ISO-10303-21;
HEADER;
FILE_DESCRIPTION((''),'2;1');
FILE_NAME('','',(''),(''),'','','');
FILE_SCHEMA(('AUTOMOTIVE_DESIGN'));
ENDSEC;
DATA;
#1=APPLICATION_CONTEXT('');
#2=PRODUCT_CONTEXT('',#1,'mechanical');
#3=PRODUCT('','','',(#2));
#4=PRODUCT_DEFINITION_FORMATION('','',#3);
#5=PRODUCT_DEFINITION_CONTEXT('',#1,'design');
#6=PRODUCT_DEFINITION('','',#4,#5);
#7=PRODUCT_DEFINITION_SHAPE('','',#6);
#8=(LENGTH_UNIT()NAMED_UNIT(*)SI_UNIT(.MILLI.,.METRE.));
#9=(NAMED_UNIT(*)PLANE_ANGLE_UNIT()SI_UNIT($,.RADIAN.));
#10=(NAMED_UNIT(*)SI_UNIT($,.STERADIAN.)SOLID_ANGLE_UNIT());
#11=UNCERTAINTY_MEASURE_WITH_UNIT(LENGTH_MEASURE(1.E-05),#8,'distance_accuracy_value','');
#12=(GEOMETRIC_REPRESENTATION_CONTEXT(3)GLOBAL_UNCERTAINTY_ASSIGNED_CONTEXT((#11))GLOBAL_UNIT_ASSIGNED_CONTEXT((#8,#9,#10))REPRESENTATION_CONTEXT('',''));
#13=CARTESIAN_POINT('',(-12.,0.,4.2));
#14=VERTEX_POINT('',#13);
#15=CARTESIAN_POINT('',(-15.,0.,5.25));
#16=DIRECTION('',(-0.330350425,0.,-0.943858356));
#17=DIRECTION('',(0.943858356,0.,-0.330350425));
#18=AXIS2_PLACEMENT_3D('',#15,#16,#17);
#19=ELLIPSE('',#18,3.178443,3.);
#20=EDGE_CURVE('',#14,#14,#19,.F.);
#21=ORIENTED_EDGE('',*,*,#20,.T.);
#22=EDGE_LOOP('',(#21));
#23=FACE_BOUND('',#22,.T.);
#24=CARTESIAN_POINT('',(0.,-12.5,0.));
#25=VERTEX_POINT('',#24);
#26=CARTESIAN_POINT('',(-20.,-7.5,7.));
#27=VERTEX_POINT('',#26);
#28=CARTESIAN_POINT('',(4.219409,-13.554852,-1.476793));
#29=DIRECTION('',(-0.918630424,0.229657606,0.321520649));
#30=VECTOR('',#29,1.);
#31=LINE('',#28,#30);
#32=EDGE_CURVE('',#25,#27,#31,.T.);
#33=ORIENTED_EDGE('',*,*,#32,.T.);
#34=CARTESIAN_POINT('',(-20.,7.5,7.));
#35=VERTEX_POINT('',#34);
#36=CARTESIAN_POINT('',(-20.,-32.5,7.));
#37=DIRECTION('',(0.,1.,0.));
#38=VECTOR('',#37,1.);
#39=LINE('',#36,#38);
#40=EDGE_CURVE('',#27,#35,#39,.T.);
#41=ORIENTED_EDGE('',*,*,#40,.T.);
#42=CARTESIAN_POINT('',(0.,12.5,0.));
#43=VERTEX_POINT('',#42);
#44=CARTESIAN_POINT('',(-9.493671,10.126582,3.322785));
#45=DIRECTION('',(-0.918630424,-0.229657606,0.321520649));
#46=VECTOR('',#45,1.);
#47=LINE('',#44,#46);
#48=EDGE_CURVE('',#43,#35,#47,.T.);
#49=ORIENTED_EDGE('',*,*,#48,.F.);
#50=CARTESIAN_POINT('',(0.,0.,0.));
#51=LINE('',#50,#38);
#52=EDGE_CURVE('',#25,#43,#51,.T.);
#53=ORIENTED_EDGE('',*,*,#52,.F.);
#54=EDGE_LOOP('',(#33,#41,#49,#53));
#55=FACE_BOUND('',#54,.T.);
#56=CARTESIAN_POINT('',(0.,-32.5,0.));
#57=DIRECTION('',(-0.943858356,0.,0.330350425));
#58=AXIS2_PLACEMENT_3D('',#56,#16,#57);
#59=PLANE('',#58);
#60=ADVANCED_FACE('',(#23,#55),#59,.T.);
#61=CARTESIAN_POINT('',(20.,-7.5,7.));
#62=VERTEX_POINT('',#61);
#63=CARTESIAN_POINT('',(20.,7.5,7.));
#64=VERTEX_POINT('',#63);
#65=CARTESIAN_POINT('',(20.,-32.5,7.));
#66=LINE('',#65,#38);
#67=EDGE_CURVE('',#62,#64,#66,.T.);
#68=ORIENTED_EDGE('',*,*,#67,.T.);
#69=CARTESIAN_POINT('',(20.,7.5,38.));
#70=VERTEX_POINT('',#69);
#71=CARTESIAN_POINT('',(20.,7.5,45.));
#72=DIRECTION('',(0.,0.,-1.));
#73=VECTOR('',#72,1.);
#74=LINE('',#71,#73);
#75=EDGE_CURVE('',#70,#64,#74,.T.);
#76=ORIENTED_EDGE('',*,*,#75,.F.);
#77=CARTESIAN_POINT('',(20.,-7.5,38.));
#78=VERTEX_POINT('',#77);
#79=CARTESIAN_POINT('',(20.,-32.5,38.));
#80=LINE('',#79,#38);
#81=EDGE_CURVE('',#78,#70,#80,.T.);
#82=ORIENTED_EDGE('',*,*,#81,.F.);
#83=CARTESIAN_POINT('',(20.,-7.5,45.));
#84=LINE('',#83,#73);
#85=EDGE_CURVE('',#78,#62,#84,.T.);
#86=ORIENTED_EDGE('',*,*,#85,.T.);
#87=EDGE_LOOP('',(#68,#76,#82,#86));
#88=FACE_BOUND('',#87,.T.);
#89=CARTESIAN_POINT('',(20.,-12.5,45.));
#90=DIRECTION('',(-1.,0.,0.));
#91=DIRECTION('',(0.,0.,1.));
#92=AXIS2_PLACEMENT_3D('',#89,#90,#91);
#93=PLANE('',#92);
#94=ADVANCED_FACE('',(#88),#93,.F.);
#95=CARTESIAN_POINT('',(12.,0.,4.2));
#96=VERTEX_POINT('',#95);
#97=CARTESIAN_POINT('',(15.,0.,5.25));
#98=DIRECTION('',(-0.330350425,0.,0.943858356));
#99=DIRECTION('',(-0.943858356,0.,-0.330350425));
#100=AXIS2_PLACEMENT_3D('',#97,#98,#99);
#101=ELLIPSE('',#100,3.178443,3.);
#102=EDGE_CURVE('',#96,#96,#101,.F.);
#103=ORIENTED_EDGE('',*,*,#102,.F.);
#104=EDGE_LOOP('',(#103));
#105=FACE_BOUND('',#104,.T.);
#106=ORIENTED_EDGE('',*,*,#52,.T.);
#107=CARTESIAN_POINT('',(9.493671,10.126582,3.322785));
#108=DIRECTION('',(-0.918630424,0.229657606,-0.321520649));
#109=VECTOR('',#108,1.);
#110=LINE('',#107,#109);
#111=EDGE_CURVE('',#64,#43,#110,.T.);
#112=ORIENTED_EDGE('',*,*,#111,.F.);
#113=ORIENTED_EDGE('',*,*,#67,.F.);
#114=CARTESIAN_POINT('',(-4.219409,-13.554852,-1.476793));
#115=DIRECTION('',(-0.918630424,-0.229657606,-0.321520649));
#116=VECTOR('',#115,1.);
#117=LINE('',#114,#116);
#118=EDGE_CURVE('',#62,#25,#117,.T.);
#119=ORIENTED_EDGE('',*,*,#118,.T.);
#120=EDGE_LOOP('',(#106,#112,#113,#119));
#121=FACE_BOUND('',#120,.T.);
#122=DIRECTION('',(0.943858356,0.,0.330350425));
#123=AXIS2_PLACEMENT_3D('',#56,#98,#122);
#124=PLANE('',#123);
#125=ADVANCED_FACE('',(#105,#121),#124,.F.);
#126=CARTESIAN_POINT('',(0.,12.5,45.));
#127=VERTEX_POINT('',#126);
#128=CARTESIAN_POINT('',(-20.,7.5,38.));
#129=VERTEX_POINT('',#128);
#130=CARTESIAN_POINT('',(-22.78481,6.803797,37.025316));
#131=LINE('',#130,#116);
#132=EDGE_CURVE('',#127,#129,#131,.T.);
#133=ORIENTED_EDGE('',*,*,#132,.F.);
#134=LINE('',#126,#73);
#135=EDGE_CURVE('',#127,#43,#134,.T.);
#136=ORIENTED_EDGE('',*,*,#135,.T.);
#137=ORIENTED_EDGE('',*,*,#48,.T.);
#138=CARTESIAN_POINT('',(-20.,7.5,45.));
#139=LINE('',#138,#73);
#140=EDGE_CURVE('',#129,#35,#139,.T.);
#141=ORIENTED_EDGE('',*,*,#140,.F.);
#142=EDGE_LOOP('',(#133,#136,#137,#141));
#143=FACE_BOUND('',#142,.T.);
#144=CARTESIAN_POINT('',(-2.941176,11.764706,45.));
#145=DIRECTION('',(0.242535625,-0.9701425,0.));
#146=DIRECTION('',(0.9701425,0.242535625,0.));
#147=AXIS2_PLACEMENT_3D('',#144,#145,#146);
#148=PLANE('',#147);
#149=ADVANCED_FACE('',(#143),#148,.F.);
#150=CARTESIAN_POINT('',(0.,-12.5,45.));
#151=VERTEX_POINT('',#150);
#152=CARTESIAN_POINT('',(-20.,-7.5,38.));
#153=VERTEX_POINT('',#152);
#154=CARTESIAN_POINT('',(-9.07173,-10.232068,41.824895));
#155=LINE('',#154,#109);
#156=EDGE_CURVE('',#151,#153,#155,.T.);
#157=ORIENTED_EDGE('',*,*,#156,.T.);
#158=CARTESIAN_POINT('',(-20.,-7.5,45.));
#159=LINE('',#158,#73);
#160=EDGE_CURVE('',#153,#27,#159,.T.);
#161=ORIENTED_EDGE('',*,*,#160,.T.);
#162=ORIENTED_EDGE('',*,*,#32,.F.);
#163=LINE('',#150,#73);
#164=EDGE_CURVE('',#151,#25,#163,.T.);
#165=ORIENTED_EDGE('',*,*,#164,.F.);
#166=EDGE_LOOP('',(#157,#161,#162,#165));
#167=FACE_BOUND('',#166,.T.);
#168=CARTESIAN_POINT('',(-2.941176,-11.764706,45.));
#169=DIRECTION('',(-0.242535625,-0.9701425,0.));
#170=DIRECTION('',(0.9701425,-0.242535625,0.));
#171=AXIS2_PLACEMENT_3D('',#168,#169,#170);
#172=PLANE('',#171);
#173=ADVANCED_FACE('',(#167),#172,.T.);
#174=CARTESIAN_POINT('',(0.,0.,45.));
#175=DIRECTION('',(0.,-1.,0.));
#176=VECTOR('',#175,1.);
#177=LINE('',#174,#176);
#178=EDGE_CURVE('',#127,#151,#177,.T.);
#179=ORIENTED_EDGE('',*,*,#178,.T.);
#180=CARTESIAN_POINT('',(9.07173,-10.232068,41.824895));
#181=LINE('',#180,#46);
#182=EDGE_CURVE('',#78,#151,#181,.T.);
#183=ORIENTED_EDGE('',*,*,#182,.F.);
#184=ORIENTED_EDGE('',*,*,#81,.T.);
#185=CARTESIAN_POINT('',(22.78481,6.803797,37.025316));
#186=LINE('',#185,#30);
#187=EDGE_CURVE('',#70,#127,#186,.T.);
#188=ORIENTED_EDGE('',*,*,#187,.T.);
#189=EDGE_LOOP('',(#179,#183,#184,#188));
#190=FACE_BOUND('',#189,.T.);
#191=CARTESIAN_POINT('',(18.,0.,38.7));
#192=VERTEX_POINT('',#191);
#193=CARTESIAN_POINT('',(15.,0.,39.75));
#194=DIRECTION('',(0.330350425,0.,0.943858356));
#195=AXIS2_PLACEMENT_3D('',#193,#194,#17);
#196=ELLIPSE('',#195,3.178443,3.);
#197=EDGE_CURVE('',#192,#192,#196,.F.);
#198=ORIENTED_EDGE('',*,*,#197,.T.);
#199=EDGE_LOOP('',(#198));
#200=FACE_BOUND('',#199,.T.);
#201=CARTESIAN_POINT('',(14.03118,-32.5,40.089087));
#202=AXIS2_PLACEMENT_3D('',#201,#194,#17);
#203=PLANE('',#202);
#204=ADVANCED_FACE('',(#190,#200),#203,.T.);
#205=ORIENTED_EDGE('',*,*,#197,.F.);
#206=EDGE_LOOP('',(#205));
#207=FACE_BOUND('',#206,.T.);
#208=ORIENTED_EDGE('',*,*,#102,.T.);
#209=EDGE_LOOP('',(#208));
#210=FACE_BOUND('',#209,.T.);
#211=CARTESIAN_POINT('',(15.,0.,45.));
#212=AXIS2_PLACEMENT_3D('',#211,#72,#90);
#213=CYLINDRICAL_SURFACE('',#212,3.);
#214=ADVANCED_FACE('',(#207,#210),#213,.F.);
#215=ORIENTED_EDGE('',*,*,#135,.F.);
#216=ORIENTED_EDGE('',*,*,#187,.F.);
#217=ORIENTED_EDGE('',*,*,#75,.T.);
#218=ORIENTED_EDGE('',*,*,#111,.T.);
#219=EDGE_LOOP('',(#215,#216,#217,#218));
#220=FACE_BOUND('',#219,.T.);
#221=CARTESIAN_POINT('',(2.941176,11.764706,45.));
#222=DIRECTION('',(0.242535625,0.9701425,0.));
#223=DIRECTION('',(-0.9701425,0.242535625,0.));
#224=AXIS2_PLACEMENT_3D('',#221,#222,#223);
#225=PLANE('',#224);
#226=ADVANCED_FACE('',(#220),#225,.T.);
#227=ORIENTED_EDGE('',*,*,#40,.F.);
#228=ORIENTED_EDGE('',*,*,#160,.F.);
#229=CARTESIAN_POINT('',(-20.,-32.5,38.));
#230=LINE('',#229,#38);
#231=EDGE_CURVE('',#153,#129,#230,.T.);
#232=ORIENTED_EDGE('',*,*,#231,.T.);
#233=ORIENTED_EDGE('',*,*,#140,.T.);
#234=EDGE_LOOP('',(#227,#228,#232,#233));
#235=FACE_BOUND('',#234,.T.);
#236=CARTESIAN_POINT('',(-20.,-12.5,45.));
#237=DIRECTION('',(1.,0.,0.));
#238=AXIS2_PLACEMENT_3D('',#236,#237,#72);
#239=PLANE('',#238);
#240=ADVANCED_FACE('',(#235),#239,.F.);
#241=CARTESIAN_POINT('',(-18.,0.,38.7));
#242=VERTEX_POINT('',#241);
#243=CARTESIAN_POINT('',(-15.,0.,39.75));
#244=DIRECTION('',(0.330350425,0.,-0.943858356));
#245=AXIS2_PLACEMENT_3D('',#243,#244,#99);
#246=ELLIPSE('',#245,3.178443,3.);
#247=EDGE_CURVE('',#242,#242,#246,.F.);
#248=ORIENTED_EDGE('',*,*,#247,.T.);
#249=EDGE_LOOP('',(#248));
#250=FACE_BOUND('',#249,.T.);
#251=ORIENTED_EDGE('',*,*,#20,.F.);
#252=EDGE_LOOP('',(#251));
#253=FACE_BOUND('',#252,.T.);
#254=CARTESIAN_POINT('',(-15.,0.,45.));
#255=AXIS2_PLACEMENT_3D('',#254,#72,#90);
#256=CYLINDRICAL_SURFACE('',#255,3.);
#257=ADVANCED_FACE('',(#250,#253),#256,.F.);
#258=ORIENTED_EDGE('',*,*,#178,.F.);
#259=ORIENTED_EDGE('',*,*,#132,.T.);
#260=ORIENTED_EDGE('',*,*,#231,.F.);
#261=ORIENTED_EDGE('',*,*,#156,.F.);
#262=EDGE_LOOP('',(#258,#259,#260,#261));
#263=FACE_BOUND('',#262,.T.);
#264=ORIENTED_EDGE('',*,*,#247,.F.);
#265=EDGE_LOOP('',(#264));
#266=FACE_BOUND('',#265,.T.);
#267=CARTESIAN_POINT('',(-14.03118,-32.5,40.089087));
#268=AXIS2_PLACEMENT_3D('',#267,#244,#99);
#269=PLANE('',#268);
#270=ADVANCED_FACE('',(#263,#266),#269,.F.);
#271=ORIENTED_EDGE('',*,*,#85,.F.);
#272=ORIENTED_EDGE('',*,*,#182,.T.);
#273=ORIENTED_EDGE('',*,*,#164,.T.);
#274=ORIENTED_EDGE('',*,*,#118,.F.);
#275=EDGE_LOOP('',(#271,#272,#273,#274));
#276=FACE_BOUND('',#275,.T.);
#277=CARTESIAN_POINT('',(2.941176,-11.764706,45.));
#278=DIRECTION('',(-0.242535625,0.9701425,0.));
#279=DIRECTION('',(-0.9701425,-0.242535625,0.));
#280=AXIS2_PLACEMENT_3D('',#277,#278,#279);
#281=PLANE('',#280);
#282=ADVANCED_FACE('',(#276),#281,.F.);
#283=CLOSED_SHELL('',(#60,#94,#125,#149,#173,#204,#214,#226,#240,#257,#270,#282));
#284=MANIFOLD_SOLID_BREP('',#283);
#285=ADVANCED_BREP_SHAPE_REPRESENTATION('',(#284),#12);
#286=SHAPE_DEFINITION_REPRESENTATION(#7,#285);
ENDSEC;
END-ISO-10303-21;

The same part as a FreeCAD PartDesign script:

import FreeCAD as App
import Part
import Sketcher

V = App.Vector


def add_polygon(sketch, points):
    """Adds a closed chain of lines whose ends are joined by coincident constraints."""
    first, n = sketch.GeometryCount, len(points)
    for a, b in zip(points, points[1:] + points[:1]):
        sketch.addGeometry(Part.LineSegment(App.Vector(*a, 0), App.Vector(*b, 0)), False)
    for i in range(n):
        sketch.addConstraint(Sketcher.Constraint("Coincident", first + i, 2, first + (i + 1) % n, 1))

doc = App.newDocument("Part")
body = doc.addObject("PartDesign::Body", "Body")

sketch1 = body.newObject("Sketcher::SketchObject", "Sketch")
sketch1.AttachmentSupport = (doc.getObject("XY_Plane"), [""])
sketch1.MapMode = "FlatFace"
add_polygon(sketch1, [(-20, 12.5), (-20, -12.5), (20, -12.5), (20, 12.5)])
sketch1.addConstraint(Sketcher.Constraint("Vertical", 0))
sketch1.addConstraint(Sketcher.Constraint("Horizontal", 1))
sketch1.addConstraint(Sketcher.Constraint("Vertical", 2))
sketch1.addConstraint(Sketcher.Constraint("Horizontal", 3))
sketch1.addConstraint(Sketcher.Constraint("Symmetric", 0, 2, 2, 2, -1, 1))
sketch1.addConstraint(Sketcher.Constraint("DistanceX", 1, 1, 1, 2, 40.0))
sketch1.addConstraint(Sketcher.Constraint("DistanceY", 0, 2, 0, 1, 25.0))
pad1 = body.newObject("PartDesign::Pad", "Pad")
pad1.Profile = sketch1
pad1.Length = 45

sketch2 = body.newObject("Sketcher::SketchObject", "Sketch001")
sketch2.AttachmentSupport = (doc.getObject("XZ_Plane"), [""])
sketch2.MapMode = "FlatFace"
sketch2.AttachmentOffset = App.Placement(V(0, 0, -12.5), App.Rotation())
add_polygon(sketch2, [(0, 45), (-20, 38), (-20, 45)])
add_polygon(sketch2, [(20, 45), (20, 38), (0, 45)])
add_polygon(sketch2, [(20, 0), (0, 0), (20, 7)])
add_polygon(sketch2, [(-20, 7), (0, 0), (-20, 0)])
sketch2.addConstraint(Sketcher.Constraint("Vertical", 1))
sketch2.addConstraint(Sketcher.Constraint("Horizontal", 2))
sketch2.addConstraint(Sketcher.Constraint("Vertical", 3))
sketch2.addConstraint(Sketcher.Constraint("Horizontal", 5))
sketch2.addConstraint(Sketcher.Constraint("Horizontal", 6))
sketch2.addConstraint(Sketcher.Constraint("Vertical", 8))
sketch2.addConstraint(Sketcher.Constraint("Horizontal", 10))
sketch2.addConstraint(Sketcher.Constraint("Vertical", 11))
sketch2.addConstraint(Sketcher.Constraint("Coincident", 6, 2, -1, 1))
sketch2.addConstraint(Sketcher.Constraint("Coincident", 9, 2, -1, 1))
sketch2.addConstraint(Sketcher.Constraint("Coincident", 4, 2, 2, 2))
sketch2.addConstraint(Sketcher.Constraint("Symmetric", 0, 2, 3, 2, -2))
sketch2.addConstraint(Sketcher.Constraint("Symmetric", 7, 2, 11, 2, -2))
sketch2.addConstraint(Sketcher.Constraint("PointOnObject", 2, 2, -2))
sketch2.addConstraint(Sketcher.Constraint("Parallel", 0, 7))
sketch2.addConstraint(Sketcher.Constraint("Vertical", 5, 2, 7, 2))
sketch2.addConstraint(Sketcher.Constraint("DistanceX", 2, 1, 2, 2, 20.0))
sketch2.addConstraint(Sketcher.Constraint("DistanceY", 1, 1, 1, 2, 7.0))
sketch2.addConstraint(Sketcher.Constraint("DistanceY", -1, 1, 0, 2, 38.0))
pocket1 = body.newObject("PartDesign::Pocket", "Pocket")
pocket1.Profile = sketch2
pocket1.Length = 45
pocket1.Reversed = True

sketch3 = body.newObject("Sketcher::SketchObject", "Sketch002")
sketch3.AttachmentSupport = (doc.getObject("XY_Plane"), [""])
sketch3.MapMode = "FlatFace"
add_polygon(sketch3, [(0, 12.5), (-20, 12.5), (-20, 7.5)])
add_polygon(sketch3, [(20, 7.5), (20, 12.5), (0, 12.5)])
add_polygon(sketch3, [(0, -12.5), (20, -12.5), (20, -7.5)])
add_polygon(sketch3, [(-20, -7.5), (-20, -12.5), (0, -12.5)])
sketch3.addConstraint(Sketcher.Constraint("Horizontal", 0))
sketch3.addConstraint(Sketcher.Constraint("Vertical", 1))
sketch3.addConstraint(Sketcher.Constraint("Vertical", 3))
sketch3.addConstraint(Sketcher.Constraint("Horizontal", 4))
sketch3.addConstraint(Sketcher.Constraint("Horizontal", 6))
sketch3.addConstraint(Sketcher.Constraint("Vertical", 7))
sketch3.addConstraint(Sketcher.Constraint("Vertical", 9))
sketch3.addConstraint(Sketcher.Constraint("Horizontal", 10))
sketch3.addConstraint(Sketcher.Constraint("Coincident", 4, 2, 2, 2))
sketch3.addConstraint(Sketcher.Constraint("Coincident", 10, 2, 8, 2))
sketch3.addConstraint(Sketcher.Constraint("Symmetric", 0, 2, 6, 2, -1, 1))
sketch3.addConstraint(Sketcher.Constraint("Symmetric", 5, 2, 11, 2, -1, 1))
sketch3.addConstraint(Sketcher.Constraint("Symmetric", 1, 2, 5, 2, -2))
sketch3.addConstraint(Sketcher.Constraint("PointOnObject", 2, 2, -2))
sketch3.addConstraint(Sketcher.Constraint("PointOnObject", 8, 2, -2))
sketch3.addConstraint(Sketcher.Constraint("Parallel", 2, 8))
sketch3.addConstraint(Sketcher.Constraint("DistanceX", 0, 2, 0, 1, 20.0))
sketch3.addConstraint(Sketcher.Constraint("DistanceY", 1, 2, 1, 1, 5.0))
sketch3.addConstraint(Sketcher.Constraint("DistanceY", 6, 2, 5, 2, 20.0))
pocket2 = body.newObject("PartDesign::Pocket", "Pocket001")
pocket2.Profile = sketch3
pocket2.Length = 45
pocket2.Reversed = True

sketch4 = body.newObject("Sketcher::SketchObject", "Sketch003")
sketch4.AttachmentSupport = (doc.getObject("XY_Plane"), [""])
sketch4.MapMode = "FlatFace"
sketch4.addGeometry(Part.Circle(V(-15, 0, 0), V(0, 0, 1), 3), False)
sketch4.addGeometry(Part.Circle(V(15, 0, 0), V(0, 0, 1), 3), False)
sketch4.addConstraint(Sketcher.Constraint("Equal", 0, 1))
sketch4.addConstraint(Sketcher.Constraint("Symmetric", 0, 3, 1, 3, -1, 1))
sketch4.addConstraint(Sketcher.Constraint("PointOnObject", 0, 3, -1))
sketch4.addConstraint(Sketcher.Constraint("Diameter", 0, 6.0))
sketch4.addConstraint(Sketcher.Constraint("DistanceX", 0, 3, -1, 1, 15.0))
pocket3 = body.newObject("PartDesign::Pocket", "Pocket002")
pocket3.Profile = sketch4
pocket3.Type = "ThroughAll"
pocket3.Reversed = True

doc.recompute()
